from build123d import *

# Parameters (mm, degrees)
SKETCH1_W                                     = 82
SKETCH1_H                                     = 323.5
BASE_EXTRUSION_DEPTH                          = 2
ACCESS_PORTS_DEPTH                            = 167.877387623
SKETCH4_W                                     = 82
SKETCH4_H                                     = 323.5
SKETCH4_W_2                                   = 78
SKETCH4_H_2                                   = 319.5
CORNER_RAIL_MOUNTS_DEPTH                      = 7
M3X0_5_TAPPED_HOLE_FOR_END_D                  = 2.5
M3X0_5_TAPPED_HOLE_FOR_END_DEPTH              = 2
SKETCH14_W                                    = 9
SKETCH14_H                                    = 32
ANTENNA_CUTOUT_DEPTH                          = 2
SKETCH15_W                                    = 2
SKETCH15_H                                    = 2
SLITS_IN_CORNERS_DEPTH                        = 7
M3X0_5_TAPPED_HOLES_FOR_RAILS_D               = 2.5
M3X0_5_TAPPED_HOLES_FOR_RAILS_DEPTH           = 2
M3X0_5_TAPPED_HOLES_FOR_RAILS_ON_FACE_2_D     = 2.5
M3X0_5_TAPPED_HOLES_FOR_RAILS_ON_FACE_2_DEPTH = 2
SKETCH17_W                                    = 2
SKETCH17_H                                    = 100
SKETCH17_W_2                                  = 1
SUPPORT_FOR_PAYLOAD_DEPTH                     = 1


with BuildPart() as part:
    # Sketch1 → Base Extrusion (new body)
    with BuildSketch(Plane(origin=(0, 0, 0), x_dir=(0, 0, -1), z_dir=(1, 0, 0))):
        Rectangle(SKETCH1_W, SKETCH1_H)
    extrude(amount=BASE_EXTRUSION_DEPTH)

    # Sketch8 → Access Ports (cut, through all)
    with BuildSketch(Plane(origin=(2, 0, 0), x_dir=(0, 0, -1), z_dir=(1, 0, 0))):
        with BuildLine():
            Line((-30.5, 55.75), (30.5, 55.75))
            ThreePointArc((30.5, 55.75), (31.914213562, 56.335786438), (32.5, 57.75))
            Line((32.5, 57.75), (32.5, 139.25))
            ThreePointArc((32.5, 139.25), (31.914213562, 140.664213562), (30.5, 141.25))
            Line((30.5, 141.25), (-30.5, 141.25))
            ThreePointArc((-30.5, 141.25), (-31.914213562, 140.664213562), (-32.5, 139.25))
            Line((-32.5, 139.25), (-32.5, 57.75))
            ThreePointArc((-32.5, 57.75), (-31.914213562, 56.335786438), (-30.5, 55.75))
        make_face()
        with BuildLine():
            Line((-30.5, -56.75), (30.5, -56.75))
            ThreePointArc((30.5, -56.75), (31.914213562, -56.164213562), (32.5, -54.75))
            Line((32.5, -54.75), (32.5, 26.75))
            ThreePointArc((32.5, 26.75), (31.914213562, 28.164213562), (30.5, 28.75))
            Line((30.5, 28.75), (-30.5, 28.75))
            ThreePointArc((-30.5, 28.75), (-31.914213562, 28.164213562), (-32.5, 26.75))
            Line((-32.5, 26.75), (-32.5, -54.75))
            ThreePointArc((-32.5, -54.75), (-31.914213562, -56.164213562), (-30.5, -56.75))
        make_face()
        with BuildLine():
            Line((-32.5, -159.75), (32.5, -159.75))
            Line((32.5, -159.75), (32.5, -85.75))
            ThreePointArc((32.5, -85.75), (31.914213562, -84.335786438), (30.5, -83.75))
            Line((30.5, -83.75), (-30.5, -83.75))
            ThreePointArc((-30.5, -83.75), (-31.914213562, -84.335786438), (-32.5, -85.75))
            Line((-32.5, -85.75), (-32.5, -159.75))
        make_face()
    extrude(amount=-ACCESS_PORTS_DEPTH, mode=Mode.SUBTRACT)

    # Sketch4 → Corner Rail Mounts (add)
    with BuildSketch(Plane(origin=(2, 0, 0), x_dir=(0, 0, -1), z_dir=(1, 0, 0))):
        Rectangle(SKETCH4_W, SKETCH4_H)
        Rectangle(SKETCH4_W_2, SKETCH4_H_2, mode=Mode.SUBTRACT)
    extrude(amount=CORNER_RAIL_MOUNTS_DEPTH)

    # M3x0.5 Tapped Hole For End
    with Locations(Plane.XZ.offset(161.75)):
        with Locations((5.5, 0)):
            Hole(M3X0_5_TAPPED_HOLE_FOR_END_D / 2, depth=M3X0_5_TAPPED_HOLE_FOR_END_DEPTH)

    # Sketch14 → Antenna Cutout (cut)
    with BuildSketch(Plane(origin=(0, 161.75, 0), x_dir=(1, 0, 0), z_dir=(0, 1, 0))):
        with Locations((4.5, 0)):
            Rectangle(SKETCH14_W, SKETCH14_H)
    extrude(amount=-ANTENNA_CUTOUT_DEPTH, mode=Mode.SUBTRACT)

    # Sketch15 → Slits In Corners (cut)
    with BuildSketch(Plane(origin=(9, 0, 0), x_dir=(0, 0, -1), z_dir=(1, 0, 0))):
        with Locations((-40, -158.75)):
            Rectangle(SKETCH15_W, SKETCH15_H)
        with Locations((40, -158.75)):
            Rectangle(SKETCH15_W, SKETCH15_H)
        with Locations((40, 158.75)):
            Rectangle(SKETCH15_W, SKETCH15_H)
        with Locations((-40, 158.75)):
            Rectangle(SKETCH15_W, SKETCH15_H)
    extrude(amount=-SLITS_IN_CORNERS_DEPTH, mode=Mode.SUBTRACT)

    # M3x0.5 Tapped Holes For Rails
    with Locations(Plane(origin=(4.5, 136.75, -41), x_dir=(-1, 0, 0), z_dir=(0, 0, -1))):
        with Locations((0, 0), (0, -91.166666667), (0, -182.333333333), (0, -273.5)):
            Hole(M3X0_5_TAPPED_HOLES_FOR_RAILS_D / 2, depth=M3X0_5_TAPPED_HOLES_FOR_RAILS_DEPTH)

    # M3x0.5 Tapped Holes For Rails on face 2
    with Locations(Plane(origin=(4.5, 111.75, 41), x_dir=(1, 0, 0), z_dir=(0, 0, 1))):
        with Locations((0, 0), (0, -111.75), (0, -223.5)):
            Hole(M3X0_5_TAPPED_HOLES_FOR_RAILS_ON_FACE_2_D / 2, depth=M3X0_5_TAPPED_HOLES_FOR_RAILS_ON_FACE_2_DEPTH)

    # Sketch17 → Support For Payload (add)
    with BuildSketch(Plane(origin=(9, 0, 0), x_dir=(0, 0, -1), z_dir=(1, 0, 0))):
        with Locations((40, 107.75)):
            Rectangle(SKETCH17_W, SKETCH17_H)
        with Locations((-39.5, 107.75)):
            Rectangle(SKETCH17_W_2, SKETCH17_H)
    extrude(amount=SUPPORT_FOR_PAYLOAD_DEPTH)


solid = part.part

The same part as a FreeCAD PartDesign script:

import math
import FreeCAD as App
import Part
import Sketcher

doc = App.newDocument("Part")
params = doc.addObject("Spreadsheet::Sheet", "Params")
for row, (alias, value) in enumerate([
    ("sketch1_height", "82 mm"),
    ("sketch1_width", "323.5 mm"),
    ("pad1_length", "2 mm"),
    ("sketch2_radius", "2 mm"),
    ("sketch2_width", "74 mm"),
    ("sketch2_height", "61 mm"),
    ("sketch2_width2", "81.5 mm"),
    ("sketch3_height", "82 mm"),
    ("sketch3_height2", "78 mm"),
    ("sketch3_width", "323.5 mm"),
    ("sketch3_width2", "319.5 mm"),
    ("pad2_length", "7 mm"),
    ("sketch4_diameter", "2.5 mm"),
    ("hole_diameter", "2.5 mm"),
    ("hole_depth", "2 mm"),
    ("sketch5_width", "9 mm"),
    ("sketch5_height", "32 mm"),
    ("pocket2_length", "2 mm"),
    ("sketch6_width", "2 mm"),
    ("pocket3_length", "7 mm"),
    ("sketch7_diameter", "2.5 mm"),
    ("hole2_diameter", "2.5 mm"),
    ("hole2_depth", "2 mm"),
    ("sketch8_diameter", "2.5 mm"),
    ("hole3_diameter", "2.5 mm"),
    ("hole3_depth", "2 mm"),
    ("sketch9_width", "100 mm"),
    ("sketch9_height", "2 mm"),
    ("sketch9_height2", "1 mm"),
    ("pad3_length", "1 mm"),
], start=1):
    params.set(f"A{row}", alias)
    params.set(f"B{row}", "=" + value)
    params.setAlias(f"B{row}", alias)

body = doc.addObject("PartDesign::Body", "Body")

# Sketch on YZ plane
sketch1 = doc.addObject("Sketcher::SketchObject", "Sketch")
body.addObject(sketch1)
sketch1.AttachmentSupport = (doc.YZ_Plane, [""])
sketch1.MapMode = "FlatFace"
sketch1.addGeometry([
    Part.LineSegment(App.Vector(162, 41, 0), App.Vector(-162, 41, 0)),
    Part.LineSegment(App.Vector(-162, 41, 0), App.Vector(-162, -41, 0)),
    Part.LineSegment(App.Vector(-162, -41, 0), App.Vector(162, -41, 0)),
    Part.LineSegment(App.Vector(162, -41, 0), App.Vector(162, 41, 0)),
], False)
sketch1.addConstraint([
    Sketcher.Constraint("Coincident", 0, 2, 1, 1),
    Sketcher.Constraint("Coincident", 1, 2, 2, 1),
    Sketcher.Constraint("Coincident", 2, 2, 3, 1),
    Sketcher.Constraint("Coincident", 3, 2, 0, 1),
    Sketcher.Constraint("Horizontal", 0),
    Sketcher.Constraint("Vertical", 1),
    Sketcher.Constraint("Horizontal", 2),
    Sketcher.Constraint("Vertical", 3),
    Sketcher.Constraint("Symmetric", 0, 2, 2, 2, -1, 1),
    Sketcher.Constraint("DistanceY", 1, 2, 1, 1, 82.0),
    Sketcher.Constraint("DistanceX", 0, 2, 0, 1, 323.5),
])
sketch1.setExpression("Constraints[9]", "Params.sketch1_height")
sketch1.setExpression("Constraints[10]", "Params.sketch1_width")
pad1 = doc.addObject("PartDesign::Pad", "Pad")
body.addObject(pad1)
pad1.Profile = sketch1
pad1.setExpression("Length", "Params.pad1_length")

# Sketch on YZ plane
sketch2 = doc.addObject("Sketcher::SketchObject", "Sketch001")
body.addObject(sketch2)
sketch2.AttachmentSupport = (doc.YZ_Plane, [""])
sketch2.MapMode = "FlatFace"
sketch2.AttachmentOffset = App.Placement(App.Vector(0, 0, 2), App.Rotation())
sketch2.addGeometry([
    Part.LineSegment(App.Vector(55.8, 30.5, 0), App.Vector(55.8, -30.5, 0)),  # 0
    Part.ArcOfCircle(Part.Circle(App.Vector(57.8, -30.5, 0), App.Vector(0, 0, 1), 2), math.radians(-180), math.radians(-90)),  # 1
    Part.LineSegment(App.Vector(57.8, -32.5, 0), App.Vector(139.2, -32.5, 0)),  # 2
    Part.ArcOfCircle(Part.Circle(App.Vector(139.2, -30.5, 0), App.Vector(0, 0, 1), 2), math.radians(-90), math.radians(0)),  # 3
    Part.LineSegment(App.Vector(141.2, -30.5, 0), App.Vector(141.2, 30.5, 0)),  # 4
    Part.ArcOfCircle(Part.Circle(App.Vector(139.2, 30.5, 0), App.Vector(0, 0, 1), 2), math.radians(0), math.radians(90)),  # 5
    Part.LineSegment(App.Vector(139.2, 32.5, 0), App.Vector(57.8, 32.5, 0)),  # 6
    Part.ArcOfCircle(Part.Circle(App.Vector(57.8, 30.5, 0), App.Vector(0, 0, 1), 2), math.radians(90), math.radians(180)),  # 7
    Part.LineSegment(App.Vector(-56.8, 30.5, 0), App.Vector(-56.8, -30.5, 0)),  # 8
    Part.ArcOfCircle(Part.Circle(App.Vector(-54.7, -30.5, 0), App.Vector(0, 0, 1), 2), math.radians(-180), math.radians(-90)),  # 9
    Part.LineSegment(App.Vector(-54.8, -32.5, 0), App.Vector(26.8, -32.5, 0)),  # 10
    Part.ArcOfCircle(Part.Circle(App.Vector(26.7, -30.5, 0), App.Vector(0, 0, 1), 2), math.radians(-90), math.radians(0)),  # 11
    Part.LineSegment(App.Vector(28.8, -30.5, 0), App.Vector(28.8, 30.5, 0)),  # 12
    Part.ArcOfCircle(Part.Circle(App.Vector(26.7, 30.5, 0), App.Vector(0, 0, 1), 2), math.radians(0), math.radians(90)),  # 13
    Part.LineSegment(App.Vector(26.8, 32.5, 0), App.Vector(-54.8, 32.5, 0)),  # 14
    Part.ArcOfCircle(Part.Circle(App.Vector(-54.7, 30.5, 0), App.Vector(0, 0, 1), 2), math.radians(90), math.radians(180)),  # 15
    Part.LineSegment(App.Vector(-159.8, 32.5, 0), App.Vector(-159.8, -32.5, 0)),  # 16
    Part.LineSegment(App.Vector(-159.8, -32.5, 0), App.Vector(-85.8, -32.5, 0)),  # 17
    Part.ArcOfCircle(Part.Circle(App.Vector(-85.8, -30.5, 0), App.Vector(0, 0, 1), 2), math.radians(-90), math.radians(0)),  # 18
    Part.LineSegment(App.Vector(-83.8, -30.5, 0), App.Vector(-83.8, 30.5, 0)),  # 19
    Part.ArcOfCircle(Part.Circle(App.Vector(-85.8, 30.5, 0), App.Vector(0, 0, 1), 2), math.radians(0), math.radians(90)),  # 20
    Part.LineSegment(App.Vector(-85.8, 32.5, 0), App.Vector(-159.8, 32.5, 0)),  # 21
], False)
sketch2.addConstraint([
    Sketcher.Constraint("Tangent", 0, 2, 1, 1),
    Sketcher.Constraint("Tangent", 1, 2, 2, 1),
    Sketcher.Constraint("Tangent", 2, 2, 3, 1),
    Sketcher.Constraint("Tangent", 3, 2, 4, 1),
    Sketcher.Constraint("Tangent", 4, 2, 5, 1),
    Sketcher.Constraint("Tangent", 5, 2, 6, 1),
    Sketcher.Constraint("Tangent", 6, 2, 7, 1),
    Sketcher.Constraint("Tangent", 7, 2, 0, 1),
    Sketcher.Constraint("Tangent", 8, 2, 9, 1),
    Sketcher.Constraint("Tangent", 9, 2, 10, 1),
    Sketcher.Constraint("Tangent", 10, 2, 11, 1),
    Sketcher.Constraint("Tangent", 11, 2, 12, 1),
    Sketcher.Constraint("Tangent", 12, 2, 13, 1),
    Sketcher.Constraint("Tangent", 13, 2, 14, 1),
    Sketcher.Constraint("Tangent", 14, 2, 15, 1),
    Sketcher.Constraint("Tangent", 15, 2, 8, 1),
    Sketcher.Constraint("Coincident", 16, 2, 17, 1),
    Sketcher.Constraint("Tangent", 17, 2, 18, 1),
    Sketcher.Constraint("Tangent", 18, 2, 19, 1),
    Sketcher.Constraint("Tangent", 19, 2, 20, 1),
    Sketcher.Constraint("Tangent", 20, 2, 21, 1),
    Sketcher.Constraint("Coincident", 21, 2, 16, 1),
    Sketcher.Constraint("Vertical", 0),
    Sketcher.Constraint("Horizontal", 2),
    Sketcher.Constraint("Vertical", 4),
    Sketcher.Constraint("Horizontal", 6),
    Sketcher.Constraint("Vertical", 8),
    Sketcher.Constraint("Horizontal", 10),
    Sketcher.Constraint("Vertical", 12),
    Sketcher.Constraint("Horizontal", 14),
    Sketcher.Constraint("Vertical", 16),
    Sketcher.Constraint("Horizontal", 17),
    Sketcher.Constraint("Vertical", 19),
    Sketcher.Constraint("Horizontal", 21),
    Sketcher.Constraint("Equal", 1, 3),
    Sketcher.Constraint("Equal", 3, 5),
    Sketcher.Constraint("Equal", 5, 7),
    Sketcher.Constraint("Equal", 7, 9),
    Sketcher.Constraint("Equal", 9, 11),
    Sketcher.Constraint("Equal", 11, 13),
    Sketcher.Constraint("Equal", 13, 15),
    Sketcher.Constraint("Equal", 15, 18),
    Sketcher.Constraint("Equal", 18, 20),
    Sketcher.Constraint("Horizontal", 3, 3, 9, 3),
    Sketcher.Constraint("Horizontal", 7, 3, 13, 3),
    Sketcher.Constraint("Horizontal", 11, 3, 18, 3),
    Sketcher.Constraint("Horizontal", 15, 3, 20, 3),
    Sketcher.Constraint("Equal", 6, 10),
    Sketcher.Constraint("Radius", 1, 2.0),
    Sketcher.Constraint("DistanceX", 17, 1, 17, 2, 74.0),
    Sketcher.Constraint("DistanceY", 0, 2, 0, 1, 61.0),
    Sketcher.Constraint("DistanceX", 2, 1, 2, 2, 81.5),
    Sketcher.Constraint("DistanceX", 9, 3, 3, 3, 194.0),
    Sketcher.Constraint("DistanceX", 18, 3, 9, 3, 31.0),
    Sketcher.Constraint("DistanceY", 1, 3, -1, 1, 30.5),
    Sketcher.Constraint("DistanceX", -1, 1, 1, 3, 57.75),
])
sketch2.setExpression("Constraints[48]", "Params.sketch2_radius")
sketch2.setExpression("Constraints[49]", "Params.sketch2_width")
sketch2.setExpression("Constraints[50]", "Params.sketch2_height")
sketch2.setExpression("Constraints[51]", "Params.sketch2_width2")
pocket1 = doc.addObject("PartDesign::Pocket", "Pocket")
body.addObject(pocket1)
pocket1.Profile = sketch2
pocket1.Type = "ThroughAll"

# Sketch on YZ plane
sketch3 = doc.addObject("Sketcher::SketchObject", "Sketch002")
body.addObject(sketch3)
sketch3.AttachmentSupport = (doc.YZ_Plane, [""])
sketch3.MapMode = "FlatFace"
sketch3.AttachmentOffset = App.Placement(App.Vector(0, 0, 2), App.Rotation())
sketch3.addGeometry([
    Part.LineSegment(App.Vector(162, 41, 0), App.Vector(-162, 41, 0)),  # 0
    Part.LineSegment(App.Vector(-162, 41, 0), App.Vector(-162, -41, 0)),  # 1
    Part.LineSegment(App.Vector(-162, -41, 0), App.Vector(162, -41, 0)),  # 2
    Part.LineSegment(App.Vector(162, -41, 0), App.Vector(162, 41, 0)),  # 3
    Part.LineSegment(App.Vector(-160, -39, 0), App.Vector(-160, 39, 0)),  # 4
    Part.LineSegment(App.Vector(-160, 39, 0), App.Vector(160, 39, 0)),  # 5
    Part.LineSegment(App.Vector(160, 39, 0), App.Vector(160, -39, 0)),  # 6
    Part.LineSegment(App.Vector(160, -39, 0), App.Vector(-160, -39, 0)),  # 7
], False)
sketch3.addConstraint([
    Sketcher.Constraint("Coincident", 0, 2, 1, 1),
    Sketcher.Constraint("Coincident", 1, 2, 2, 1),
    Sketcher.Constraint("Coincident", 2, 2, 3, 1),
    Sketcher.Constraint("Coincident", 3, 2, 0, 1),
    Sketcher.Constraint("Coincident", 4, 2, 5, 1),
    Sketcher.Constraint("Coincident", 5, 2, 6, 1),
    Sketcher.Constraint("Coincident", 6, 2, 7, 1),
    Sketcher.Constraint("Coincident", 7, 2, 4, 1),
    Sketcher.Constraint("Horizontal", 0),
    Sketcher.Constraint("Vertical", 1),
    Sketcher.Constraint("Horizontal", 2),
    Sketcher.Constraint("Vertical", 3),
    Sketcher.Constraint("Vertical", 4),
    Sketcher.Constraint("Horizontal", 5),
    Sketcher.Constraint("Vertical", 6),
    Sketcher.Constraint("Horizontal", 7),
    Sketcher.Constraint("Symmetric", 0, 2, 2, 2, -1, 1),
    Sketcher.Constraint("Symmetric", 4, 2, 6, 2, -1, 1),
    Sketcher.Constraint("DistanceY", 1, 2, 1, 1, 82.0),
    Sketcher.Constraint("DistanceY", 4, 1, 4, 2, 78.0),
    Sketcher.Constraint("DistanceX", 0, 2, 0, 1, 323.5),
    Sketcher.Constraint("DistanceX", 5, 1, 5, 2, 319.5),
])
sketch3.setExpression("Constraints[18]", "Params.sketch3_height")
sketch3.setExpression("Constraints[19]", "Params.sketch3_height2")
sketch3.setExpression("Constraints[20]", "Params.sketch3_width")
sketch3.setExpression("Constraints[21]", "Params.sketch3_width2")
pad2 = doc.addObject("PartDesign::Pad", "Pad001")
body.addObject(pad2)
pad2.Profile = sketch3
pad2.setExpression("Length", "Params.pad2_length")

# Sketch on XZ plane
sketch4 = doc.addObject("Sketcher::SketchObject", "Sketch003")
body.addObject(sketch4)
sketch4.AttachmentSupport = (doc.XZ_Plane, [""])
sketch4.MapMode = "FlatFace"
sketch4.AttachmentOffset = App.Placement(App.Vector(0, 0, 161.75), App.Rotation())
sketch4.addGeometry(Part.Circle(App.Vector(5.5, 0, 0), App.Vector(0, 0, 1), 1.2), False)
sketch4.addConstraint([
    Sketcher.Constraint("PointOnObject", 0, 3, -1),
    Sketcher.Constraint("Diameter", 0, 2.5),
    Sketcher.Constraint("DistanceX", -1, 1, 0, 3, 5.5),
])
sketch4.setExpression("Constraints[1]", "Params.sketch4_diameter")
doc.recompute()
hole = doc.addObject("PartDesign::Hole", "Hole")
body.addObject(hole)
hole.Profile = sketch4
hole.ThreadType = "None"
hole.setExpression("Diameter", "Params.hole_diameter")
hole.DepthType = "Dimension"
hole.setExpression("Depth", "Params.hole_depth")
hole.DrillPoint = "Flat"

# Sketch on XZ plane
sketch5 = doc.addObject("Sketcher::SketchObject", "Sketch004")
body.addObject(sketch5)
sketch5.AttachmentSupport = (doc.XZ_Plane, [""])
sketch5.MapMode = "FlatFace"
sketch5.AttachmentOffset = App.Placement(App.Vector(0, 0, -161.75), App.Rotation())
sketch5.addGeometry([
    Part.LineSegment(App.Vector(0, -16, 0), App.Vector(0, 16, 0)),
    Part.LineSegment(App.Vector(0, 16, 0), App.Vector(9, 16, 0)),
    Part.LineSegment(App.Vector(9, 16, 0), App.Vector(9, -16, 0)),
    Part.LineSegment(App.Vector(9, -16, 0), App.Vector(0, -16, 0)),
], False)
sketch5.addConstraint([
    Sketcher.Constraint("Coincident", 0, 2, 1, 1),
    Sketcher.Constraint("Coincident", 1, 2, 2, 1),
    Sketcher.Constraint("Coincident", 2, 2, 3, 1),
    Sketcher.Constraint("Coincident", 3, 2, 0, 1),
    Sketcher.Constraint("Vertical", 0),
    Sketcher.Constraint("Horizontal", 1),
    Sketcher.Constraint("Vertical", 2),
    Sketcher.Constraint("Horizontal", 3),
    Sketcher.Constraint("Symmetric", 0, 2, 3, 2, -1, 1),
    Sketcher.Constraint("DistanceX", 1, 1, 1, 2, 9.0),
    Sketcher.Constraint("DistanceY", 0, 1, 0, 2, 32.0),
])
sketch5.setExpression("Constraints[9]", "Params.sketch5_width")
sketch5.setExpression("Constraints[10]", "Params.sketch5_height")
pocket2 = doc.addObject("PartDesign::Pocket", "Pocket001")
body.addObject(pocket2)
pocket2.Profile = sketch5
pocket2.setExpression("Length", "Params.pocket2_length")
pocket2.Reversed = True

# Sketch on YZ plane
sketch6 = doc.addObject("Sketcher::SketchObject", "Sketch005")
body.addObject(sketch6)
sketch6.AttachmentSupport = (doc.YZ_Plane, [""])
sketch6.MapMode = "FlatFace"
sketch6.AttachmentOffset = App.Placement(App.Vector(0, 0, 9), App.Rotation())
sketch6.addGeometry([
    Part.LineSegment(App.Vector(-157.8, 41, 0), App.Vector(-159.8, 41, 0)),  # 0
    Part.LineSegment(App.Vector(-159.8, 41, 0), App.Vector(-159.8, 39, 0)),  # 1
    Part.LineSegment(App.Vector(-159.8, 39, 0), App.Vector(-157.8, 39, 0)),  # 2
    Part.LineSegment(App.Vector(-157.8, 39, 0), App.Vector(-157.8, 41, 0)),  # 3
    Part.LineSegment(App.Vector(-157.8, -39, 0), App.Vector(-159.8, -39, 0)),  # 4
    Part.LineSegment(App.Vector(-159.8, -39, 0), App.Vector(-159.8, -41, 0)),  # 5
    Part.LineSegment(App.Vector(-159.8, -41, 0), App.Vector(-157.8, -41, 0)),  # 6
    Part.LineSegment(App.Vector(-157.8, -41, 0), App.Vector(-157.8, -39, 0)),  # 7
    Part.LineSegment(App.Vector(159.8, -39, 0), App.Vector(157.8, -39, 0)),  # 8
    Part.LineSegment(App.Vector(157.8, -39, 0), App.Vector(157.8, -41, 0)),  # 9
    Part.LineSegment(App.Vector(157.8, -41, 0), App.Vector(159.8, -41, 0)),  # 10
    Part.LineSegment(App.Vector(159.8, -41, 0), App.Vector(159.8, -39, 0)),  # 11
    Part.LineSegment(App.Vector(159.8, 41, 0), App.Vector(157.8, 41, 0)),  # 12
    Part.LineSegment(App.Vector(157.8, 41, 0), App.Vector(157.8, 39, 0)),  # 13
    Part.LineSegment(App.Vector(157.8, 39, 0), App.Vector(159.8, 39, 0)),  # 14
    Part.LineSegment(App.Vector(159.8, 39, 0), App.Vector(159.8, 41, 0)),  # 15
], False)
sketch6.addConstraint([
    Sketcher.Constraint("Coincident", 0, 2, 1, 1),
    Sketcher.Constraint("Coincident", 1, 2, 2, 1),
    Sketcher.Constraint("Coincident", 2, 2, 3, 1),
    Sketcher.Constraint("Coincident", 3, 2, 0, 1),
    Sketcher.Constraint("Coincident", 4, 2, 5, 1),
    Sketcher.Constraint("Coincident", 5, 2, 6, 1),
    Sketcher.Constraint("Coincident", 6, 2, 7, 1),
    Sketcher.Constraint("Coincident", 7, 2, 4, 1),
    Sketcher.Constraint("Coincident", 8, 2, 9, 1),
    Sketcher.Constraint("Coincident", 9, 2, 10, 1),
    Sketcher.Constraint("Coincident", 10, 2, 11, 1),
    Sketcher.Constraint("Coincident", 11, 2, 8, 1),
    Sketcher.Constraint("Coincident", 12, 2, 13, 1),
    Sketcher.Constraint("Coincident", 13, 2, 14, 1),
    Sketcher.Constraint("Coincident", 14, 2, 15, 1),
    Sketcher.Constraint("Coincident", 15, 2, 12, 1),
    Sketcher.Constraint("Horizontal", 0),
    Sketcher.Constraint("Vertical", 1),
    Sketcher.Constraint("Horizontal", 2),
    Sketcher.Constraint("Vertical", 3),
    Sketcher.Constraint("Horizontal", 4),
    Sketcher.Constraint("Vertical", 5),
    Sketcher.Constraint("Horizontal", 6),
    Sketcher.Constraint("Vertical", 7),
    Sketcher.Constraint("Horizontal", 8),
    Sketcher.Constraint("Vertical", 9),
    Sketcher.Constraint("Horizontal", 10),
    Sketcher.Constraint("Vertical", 11),
    Sketcher.Constraint("Horizontal", 12),
    Sketcher.Constraint("Vertical", 13),
    Sketcher.Constraint("Horizontal", 14),
    Sketcher.Constraint("Vertical", 15),
    Sketcher.Constraint("Symmetric", 2, 2, 8, 2, -1, 1),
    Sketcher.Constraint("Symmetric", 0, 2, 10, 2, -1, 1),
    Sketcher.Constraint("Symmetric", 6, 2, 12, 2, -1, 1),
    Sketcher.Constraint("Symmetric", 4, 2, 14, 2, -1, 1),
    Sketcher.Constraint("Symmetric", 7, 2, 8, 2, -2),
    Sketcher.Constraint("Symmetric", 5, 2, 10, 2, -2),
    Sketcher.Constraint("Equal", 14, 1),
    Sketcher.Constraint("DistanceX", 0, 2, 0, 1, 2.0),
    Sketcher.Constraint("DistanceY", -1, 1, 0, 2, 41.0),
    Sketcher.Constraint("DistanceX", 7, 2, 8, 2, 315.5),
])
sketch6.setExpression("Constraints[39]", "Params.sketch6_width")
pocket3 = doc.addObject("PartDesign::Pocket", "Pocket002")
body.addObject(pocket3)
pocket3.Profile = sketch6
pocket3.setExpression("Length", "Params.pocket3_length")

# Sketch on XY plane
sketch7 = doc.addObject("Sketcher::SketchObject", "Sketch006")
body.addObject(sketch7)
sketch7.AttachmentSupport = (doc.XY_Plane, [""])
sketch7.MapMode = "FlatFace"
sketch7.AttachmentOffset = App.Placement(App.Vector(0, 0, -41), App.Rotation())
sketch7.addGeometry([
    Part.Circle(App.Vector(4.5, 136.8, 0), App.Vector(0, 0, 1), 1.2),
    Part.Circle(App.Vector(4.5, 45.6, 0), App.Vector(0, 0, 1), 1.2),
    Part.Circle(App.Vector(4.5, -45.6, 0), App.Vector(0, 0, 1), 1.2),
    Part.Circle(App.Vector(4.5, -136.8, 0), App.Vector(0, 0, 1), 1.2),
], False)
sketch7.addConstraint([
    Sketcher.Constraint("Equal", 0, 1),
    Sketcher.Constraint("Equal", 1, 2),
    Sketcher.Constraint("Equal", 2, 3),
    Sketcher.Constraint("Symmetric", 1, 3, 2, 3, -1),
    Sketcher.Constraint("Symmetric", 0, 3, 3, 3, -1),
    Sketcher.Constraint("Vertical", 0, 3, 1, 3),
    Sketcher.Constraint("Diameter", 0, 2.5),
    Sketcher.Constraint("DistanceX", -1, 1, 0, 3, 4.5),
    Sketcher.Constraint("DistanceY", 3, 3, 0, 3, 273.5),
    Sketcher.Constraint("DistanceY", -1, 1, 1, 3, 45.583333),
])
sketch7.setExpression("Constraints[6]", "Params.sketch7_diameter")
doc.recompute()
hole2 = doc.addObject("PartDesign::Hole", "Hole001")
body.addObject(hole2)
hole2.Profile = sketch7
hole2.ThreadType = "None"
hole2.setExpression("Diameter", "Params.hole2_diameter")
hole2.DepthType = "Dimension"
hole2.setExpression("Depth", "Params.hole2_depth")
hole2.DrillPoint = "Flat"
hole2.Reversed = True

# Sketch on XY plane
sketch8 = doc.addObject("Sketcher::SketchObject", "Sketch007")
body.addObject(sketch8)
sketch8.AttachmentSupport = (doc.XY_Plane, [""])
sketch8.MapMode = "FlatFace"
sketch8.AttachmentOffset = App.Placement(App.Vector(0, 0, 41), App.Rotation())
sketch8.addGeometry([
    Part.Circle(App.Vector(4.5, 111.8, 0), App.Vector(0, 0, 1), 1.2),
    Part.Circle(App.Vector(4.5, 0, 0), App.Vector(0, 0, 1), 1.2),
    Part.Circle(App.Vector(4.5, -111.8, 0), App.Vector(0, 0, 1), 1.2),
], False)
sketch8.addConstraint([
    Sketcher.Constraint("Equal", 0, 1),
    Sketcher.Constraint("Equal", 1, 2),
    Sketcher.Constraint("Symmetric", 0, 3, 2, 3, -1),
    Sketcher.Constraint("PointOnObject", 1, 3, -1),
    Sketcher.Constraint("Vertical", 0, 3, 1, 3),
    Sketcher.Constraint("Diameter", 0, 2.5),
    Sketcher.Constraint("DistanceX", -1, 1, 0, 3, 4.5),
    Sketcher.Constraint("DistanceY", 2, 3, 0, 3, 223.5),
])
sketch8.setExpression("Constraints[5]", "Params.sketch8_diameter")
doc.recompute()
hole3 = doc.addObject("PartDesign::Hole", "Hole002")
body.addObject(hole3)
hole3.Profile = sketch8
hole3.ThreadType = "None"
hole3.setExpression("Diameter", "Params.hole3_diameter")
hole3.DepthType = "Dimension"
hole3.setExpression("Depth", "Params.hole3_depth")
hole3.DrillPoint = "Flat"

# Sketch on YZ plane
sketch9 = doc.addObject("Sketcher::SketchObject", "Sketch008")
body.addObject(sketch9)
sketch9.AttachmentSupport = (doc.YZ_Plane, [""])
sketch9.MapMode = "FlatFace"
sketch9.AttachmentOffset = App.Placement(App.Vector(0, 0, 9), App.Rotation())
sketch9.addGeometry([
    Part.LineSegment(App.Vector(157.8, -39, 0), App.Vector(57.8, -39, 0)),  # 0
    Part.LineSegment(App.Vector(57.8, -39, 0), App.Vector(57.8, -41, 0)),  # 1
    Part.LineSegment(App.Vector(57.8, -41, 0), App.Vector(157.8, -41, 0)),  # 2
    Part.LineSegment(App.Vector(157.8, -41, 0), App.Vector(157.8, -39, 0)),  # 3
    Part.LineSegment(App.Vector(157.8, 40, 0), App.Vector(57.8, 40, 0)),  # 4
    Part.LineSegment(App.Vector(57.8, 40, 0), App.Vector(57.8, 39, 0)),  # 5
    Part.LineSegment(App.Vector(57.8, 39, 0), App.Vector(157.8, 39, 0)),  # 6
    Part.LineSegment(App.Vector(157.8, 39, 0), App.Vector(157.8, 40, 0)),  # 7
], False)
sketch9.addConstraint([
    Sketcher.Constraint("Coincident", 0, 2, 1, 1),
    Sketcher.Constraint("Coincident", 1, 2, 2, 1),
    Sketcher.Constraint("Coincident", 2, 2, 3, 1),
    Sketcher.Constraint("Coincident", 3, 2, 0, 1),
    Sketcher.Constraint("Coincident", 4, 2, 5, 1),
    Sketcher.Constraint("Coincident", 5, 2, 6, 1),
    Sketcher.Constraint("Coincident", 6, 2, 7, 1),
    Sketcher.Constraint("Coincident", 7, 2, 4, 1),
    Sketcher.Constraint("Horizontal", 0),
    Sketcher.Constraint("Vertical", 1),
    Sketcher.Constraint("Horizontal", 2),
    Sketcher.Constraint("Vertical", 3),
    Sketcher.Constraint("Horizontal", 4),
    Sketcher.Constraint("Vertical", 5),
    Sketcher.Constraint("Horizontal", 6),
    Sketcher.Constraint("Vertical", 7),
    Sketcher.Constraint("Symmetric", 0, 2, 5, 2, -1),
    Sketcher.Constraint("Vertical", 3, 2, 6, 2),
    Sketcher.Constraint("DistanceX", 0, 2, 0, 1, 100.0),
    Sketcher.Constraint("DistanceY", 1, 2, 1, 1, 2.0),
    Sketcher.Constraint("DistanceY", 5, 2, 5, 1, 1.0),
    Sketcher.Constraint("DistanceY", 0, 2, -1, 1, 39.0),
    Sketcher.Constraint("DistanceX", -1, 1, 0, 2, 57.75),
])
sketch9.setExpression("Constraints[18]", "Params.sketch9_width")
sketch9.setExpression("Constraints[19]", "Params.sketch9_height")
sketch9.setExpression("Constraints[20]", "Params.sketch9_height2")
pad3 = doc.addObject("PartDesign::Pad", "Pad002")
body.addObject(pad3)
pad3.Profile = sketch9
pad3.setExpression("Length", "Params.pad3_length")

doc.recompute()
